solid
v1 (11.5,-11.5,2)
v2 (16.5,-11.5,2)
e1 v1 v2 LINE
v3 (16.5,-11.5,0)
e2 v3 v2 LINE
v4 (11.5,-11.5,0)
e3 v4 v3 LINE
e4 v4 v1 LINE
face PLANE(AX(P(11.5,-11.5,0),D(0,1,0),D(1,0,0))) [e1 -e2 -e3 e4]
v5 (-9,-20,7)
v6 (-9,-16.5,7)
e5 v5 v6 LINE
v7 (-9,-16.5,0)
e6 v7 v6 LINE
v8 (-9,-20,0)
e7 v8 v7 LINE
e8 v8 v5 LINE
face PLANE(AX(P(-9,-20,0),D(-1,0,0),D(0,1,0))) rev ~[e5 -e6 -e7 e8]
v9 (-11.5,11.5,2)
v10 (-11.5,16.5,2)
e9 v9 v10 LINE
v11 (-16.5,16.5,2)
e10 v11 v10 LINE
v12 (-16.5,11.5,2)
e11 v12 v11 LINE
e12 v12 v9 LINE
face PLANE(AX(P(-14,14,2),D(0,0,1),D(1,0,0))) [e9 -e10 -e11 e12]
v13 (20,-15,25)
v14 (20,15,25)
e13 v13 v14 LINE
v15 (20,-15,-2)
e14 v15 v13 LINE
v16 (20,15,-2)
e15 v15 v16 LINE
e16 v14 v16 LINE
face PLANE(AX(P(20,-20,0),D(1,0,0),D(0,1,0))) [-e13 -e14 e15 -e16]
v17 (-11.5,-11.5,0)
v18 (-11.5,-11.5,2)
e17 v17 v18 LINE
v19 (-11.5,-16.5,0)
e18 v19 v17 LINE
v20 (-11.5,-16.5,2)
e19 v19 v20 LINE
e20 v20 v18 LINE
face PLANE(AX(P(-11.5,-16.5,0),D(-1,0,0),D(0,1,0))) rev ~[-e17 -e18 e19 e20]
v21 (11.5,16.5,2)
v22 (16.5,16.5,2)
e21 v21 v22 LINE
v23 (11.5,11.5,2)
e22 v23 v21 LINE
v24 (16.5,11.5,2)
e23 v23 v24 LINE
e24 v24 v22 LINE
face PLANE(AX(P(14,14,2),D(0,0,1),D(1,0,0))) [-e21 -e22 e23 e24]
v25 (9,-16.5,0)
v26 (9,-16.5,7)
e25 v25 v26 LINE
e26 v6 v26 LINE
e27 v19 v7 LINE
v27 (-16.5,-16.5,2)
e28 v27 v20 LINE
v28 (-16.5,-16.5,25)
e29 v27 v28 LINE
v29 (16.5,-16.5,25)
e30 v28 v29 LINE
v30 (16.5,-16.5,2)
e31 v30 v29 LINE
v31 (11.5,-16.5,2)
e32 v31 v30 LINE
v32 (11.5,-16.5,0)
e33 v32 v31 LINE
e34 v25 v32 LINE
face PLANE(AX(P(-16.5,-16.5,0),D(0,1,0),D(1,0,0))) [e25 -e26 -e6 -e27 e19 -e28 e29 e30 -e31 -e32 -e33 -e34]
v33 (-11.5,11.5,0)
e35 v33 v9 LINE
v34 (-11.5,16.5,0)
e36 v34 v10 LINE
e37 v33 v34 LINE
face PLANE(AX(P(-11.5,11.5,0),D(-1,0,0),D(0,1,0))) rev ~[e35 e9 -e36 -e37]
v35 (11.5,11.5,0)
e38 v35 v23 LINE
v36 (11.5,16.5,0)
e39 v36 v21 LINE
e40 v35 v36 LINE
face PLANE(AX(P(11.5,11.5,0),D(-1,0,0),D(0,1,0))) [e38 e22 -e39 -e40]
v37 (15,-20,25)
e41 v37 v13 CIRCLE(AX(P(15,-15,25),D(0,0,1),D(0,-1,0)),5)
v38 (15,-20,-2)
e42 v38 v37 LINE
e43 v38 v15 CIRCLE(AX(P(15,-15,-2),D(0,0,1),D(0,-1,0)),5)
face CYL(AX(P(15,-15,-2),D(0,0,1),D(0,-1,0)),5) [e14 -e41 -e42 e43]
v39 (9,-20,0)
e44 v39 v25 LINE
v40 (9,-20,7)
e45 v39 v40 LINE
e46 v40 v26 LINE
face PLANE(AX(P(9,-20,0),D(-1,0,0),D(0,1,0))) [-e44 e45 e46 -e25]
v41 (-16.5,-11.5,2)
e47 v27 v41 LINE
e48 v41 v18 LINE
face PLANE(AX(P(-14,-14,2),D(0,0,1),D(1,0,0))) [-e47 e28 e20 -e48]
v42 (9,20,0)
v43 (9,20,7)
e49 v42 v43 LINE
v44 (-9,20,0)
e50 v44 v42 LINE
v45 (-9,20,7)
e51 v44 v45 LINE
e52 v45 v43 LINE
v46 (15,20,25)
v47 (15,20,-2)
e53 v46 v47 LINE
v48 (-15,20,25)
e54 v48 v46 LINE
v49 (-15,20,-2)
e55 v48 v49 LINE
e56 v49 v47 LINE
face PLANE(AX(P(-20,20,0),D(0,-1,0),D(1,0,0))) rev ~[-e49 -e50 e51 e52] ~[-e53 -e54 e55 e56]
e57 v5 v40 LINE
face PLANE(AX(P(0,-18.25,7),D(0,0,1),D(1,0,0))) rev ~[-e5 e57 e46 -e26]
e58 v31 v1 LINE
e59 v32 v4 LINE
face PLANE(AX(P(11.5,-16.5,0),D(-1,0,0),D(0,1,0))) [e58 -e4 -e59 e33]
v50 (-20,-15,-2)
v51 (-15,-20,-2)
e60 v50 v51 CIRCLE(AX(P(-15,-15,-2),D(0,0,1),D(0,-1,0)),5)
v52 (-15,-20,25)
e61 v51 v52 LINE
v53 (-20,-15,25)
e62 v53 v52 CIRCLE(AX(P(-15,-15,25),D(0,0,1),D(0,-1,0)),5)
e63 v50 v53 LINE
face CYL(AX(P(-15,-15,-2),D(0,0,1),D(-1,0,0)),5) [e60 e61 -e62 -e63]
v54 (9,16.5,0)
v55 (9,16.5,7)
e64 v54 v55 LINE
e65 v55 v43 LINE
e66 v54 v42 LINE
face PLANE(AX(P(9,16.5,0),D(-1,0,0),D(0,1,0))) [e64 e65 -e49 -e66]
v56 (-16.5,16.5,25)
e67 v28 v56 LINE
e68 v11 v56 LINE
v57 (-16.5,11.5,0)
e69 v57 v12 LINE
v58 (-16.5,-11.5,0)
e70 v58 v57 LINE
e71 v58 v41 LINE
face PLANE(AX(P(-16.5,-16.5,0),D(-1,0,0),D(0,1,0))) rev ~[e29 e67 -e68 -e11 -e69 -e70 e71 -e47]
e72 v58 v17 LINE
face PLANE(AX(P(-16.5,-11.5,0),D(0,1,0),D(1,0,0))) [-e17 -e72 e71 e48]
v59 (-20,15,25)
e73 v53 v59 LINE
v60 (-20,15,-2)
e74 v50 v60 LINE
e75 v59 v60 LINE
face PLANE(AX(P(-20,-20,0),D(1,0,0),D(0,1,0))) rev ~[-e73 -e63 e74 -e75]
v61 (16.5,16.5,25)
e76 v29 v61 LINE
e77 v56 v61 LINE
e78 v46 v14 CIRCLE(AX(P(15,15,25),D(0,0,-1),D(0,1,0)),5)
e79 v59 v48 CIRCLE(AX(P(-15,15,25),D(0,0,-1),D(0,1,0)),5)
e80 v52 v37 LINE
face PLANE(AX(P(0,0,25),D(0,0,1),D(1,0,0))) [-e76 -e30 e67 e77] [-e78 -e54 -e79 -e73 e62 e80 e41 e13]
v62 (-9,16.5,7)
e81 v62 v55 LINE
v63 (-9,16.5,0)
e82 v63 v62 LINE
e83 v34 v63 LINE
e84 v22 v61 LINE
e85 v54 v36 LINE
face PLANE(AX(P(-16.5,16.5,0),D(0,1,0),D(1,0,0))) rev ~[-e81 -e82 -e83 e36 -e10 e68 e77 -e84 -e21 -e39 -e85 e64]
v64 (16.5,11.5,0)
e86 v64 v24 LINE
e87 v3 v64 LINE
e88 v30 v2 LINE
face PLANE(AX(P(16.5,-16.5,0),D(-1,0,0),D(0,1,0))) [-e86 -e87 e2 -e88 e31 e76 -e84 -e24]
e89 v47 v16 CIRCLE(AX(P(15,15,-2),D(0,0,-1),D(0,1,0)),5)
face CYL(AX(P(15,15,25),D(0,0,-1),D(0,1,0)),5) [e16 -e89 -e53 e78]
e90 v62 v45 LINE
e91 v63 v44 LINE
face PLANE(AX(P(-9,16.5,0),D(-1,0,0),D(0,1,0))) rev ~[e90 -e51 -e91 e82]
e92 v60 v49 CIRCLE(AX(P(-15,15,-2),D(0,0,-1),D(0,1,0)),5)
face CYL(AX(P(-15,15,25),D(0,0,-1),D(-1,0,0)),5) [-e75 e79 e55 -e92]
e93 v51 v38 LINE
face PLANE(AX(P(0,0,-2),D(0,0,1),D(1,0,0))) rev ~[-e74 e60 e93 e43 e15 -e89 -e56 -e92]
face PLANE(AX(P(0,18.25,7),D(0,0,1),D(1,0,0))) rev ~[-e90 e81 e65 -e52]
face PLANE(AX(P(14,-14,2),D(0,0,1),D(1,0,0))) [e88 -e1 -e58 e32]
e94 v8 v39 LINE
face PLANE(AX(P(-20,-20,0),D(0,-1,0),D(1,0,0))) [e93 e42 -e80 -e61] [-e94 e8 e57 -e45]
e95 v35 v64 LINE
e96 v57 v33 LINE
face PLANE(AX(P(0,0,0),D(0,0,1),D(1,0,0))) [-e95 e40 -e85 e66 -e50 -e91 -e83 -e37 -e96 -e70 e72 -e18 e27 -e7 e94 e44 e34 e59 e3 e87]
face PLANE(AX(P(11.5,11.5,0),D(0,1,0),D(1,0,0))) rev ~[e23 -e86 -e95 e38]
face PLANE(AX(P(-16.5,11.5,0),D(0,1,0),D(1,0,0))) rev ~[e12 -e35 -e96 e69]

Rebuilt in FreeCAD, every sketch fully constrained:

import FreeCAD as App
import Part
import Sketcher

V = App.Vector


def edges_at(feature, points):
    """Names of the edges that pass closest to the given points."""
    edges = feature.Shape.Edges
    near = lambda p: min(range(len(edges)), key=lambda i: edges[i].distToShape(Part.Vertex(*p))[0])
    return sorted({f"Edge{near(p) + 1}" for p in points})

doc = App.newDocument("Part")
body = doc.addObject("PartDesign::Body", "Body")

# Sketch on XY plane
sketch1 = body.newObject("Sketcher::SketchObject", "Sketch")
sketch1.AttachmentSupport = (doc.getObject("XY_Plane"), [""])
sketch1.MapMode = "FlatFace"
sketch1.addGeometry([
    Part.LineSegment(V(-20, 20, 0), V(-20, -20, 0)),  # 0
    Part.LineSegment(V(-20, -20, 0), V(20, -20, 0)),  # 1
    Part.LineSegment(V(20, -20, 0), V(20, 20, 0)),  # 2
    Part.LineSegment(V(20, 20, 0), V(-20, 20, 0)),  # 3
    Part.LineSegment(V(16, -16, 0), V(-16, -16, 0)),  # 4
    Part.LineSegment(V(-16, -16, 0), V(-16, 16, 0)),  # 5
    Part.LineSegment(V(-16, 16, 0), V(16, 16, 0)),  # 6
    Part.LineSegment(V(16, 16, 0), V(16, -16, 0)),  # 7
], False)
sketch1.addConstraint([
    Sketcher.Constraint("Coincident", 0, 2, 1, 1),
    Sketcher.Constraint("Coincident", 1, 2, 2, 1),
    Sketcher.Constraint("Coincident", 2, 2, 3, 1),
    Sketcher.Constraint("Coincident", 3, 2, 0, 1),
    Sketcher.Constraint("Coincident", 4, 2, 5, 1),
    Sketcher.Constraint("Coincident", 5, 2, 6, 1),
    Sketcher.Constraint("Coincident", 6, 2, 7, 1),
    Sketcher.Constraint("Coincident", 7, 2, 4, 1),
    Sketcher.Constraint("Vertical", 0),
    Sketcher.Constraint("Horizontal", 1),
    Sketcher.Constraint("Vertical", 2),
    Sketcher.Constraint("Horizontal", 3),
    Sketcher.Constraint("Horizontal", 4),
    Sketcher.Constraint("Vertical", 5),
    Sketcher.Constraint("Horizontal", 6),
    Sketcher.Constraint("Vertical", 7),
    Sketcher.Constraint("Symmetric", 0, 2, 2, 2, -1, 1),
    Sketcher.Constraint("Symmetric", 4, 2, 6, 2, -1, 1),
    Sketcher.Constraint("Equal", 3, 0),
    Sketcher.Constraint("Equal", 6, 5),
    Sketcher.Constraint("DistanceX", 1, 1, 1, 2, 40.0),
    Sketcher.Constraint("DistanceX", 4, 2, 4, 1, 33.0),
])
pad1 = body.newObject("PartDesign::Pad", "Pad")
pad1.Profile = sketch1
pad1.Length = 25

# Sketch on XY plane
sketch2 = body.newObject("Sketcher::SketchObject", "Sketch001")
sketch2.AttachmentSupport = (doc.getObject("XY_Plane"), [""])
sketch2.MapMode = "FlatFace"
sketch2.addGeometry([
    Part.LineSegment(V(-20, 20, 0), V(-20, -20, 0)),
    Part.LineSegment(V(-20, -20, 0), V(20, -20, 0)),
    Part.LineSegment(V(20, -20, 0), V(20, 20, 0)),
    Part.LineSegment(V(20, 20, 0), V(-20, 20, 0)),
], False)
sketch2.addConstraint([
    Sketcher.Constraint("Coincident", 0, 2, 1, 1),
    Sketcher.Constraint("Coincident", 1, 2, 2, 1),
    Sketcher.Constraint("Coincident", 2, 2, 3, 1),
    Sketcher.Constraint("Coincident", 3, 2, 0, 1),
    Sketcher.Constraint("Vertical", 0),
    Sketcher.Constraint("Horizontal", 1),
    Sketcher.Constraint("Vertical", 2),
    Sketcher.Constraint("Horizontal", 3),
    Sketcher.Constraint("Symmetric", 0, 2, 2, 2, -1, 1),
    Sketcher.Constraint("Equal", 3, 0),
    Sketcher.Constraint("DistanceX", 1, 1, 1, 2, 40.0),
])
pad2 = body.newObject("PartDesign::Pad", "Pad001")
pad2.Profile = sketch2
pad2.Length = 2
pad2.Reversed = True

# Sketch on XY plane
sketch3 = body.newObject("Sketcher::SketchObject", "Sketch002")
sketch3.AttachmentSupport = (doc.getObject("XY_Plane"), [""])
sketch3.MapMode = "FlatFace"
sketch3.addGeometry([
    Part.LineSegment(V(-16, 16, 0), V(-16, 12, 0)),  # 0
    Part.LineSegment(V(-16, 12, 0), V(-12, 12, 0)),  # 1
    Part.LineSegment(V(-12, 12, 0), V(-12, 16, 0)),  # 2
    Part.LineSegment(V(-12, 16, 0), V(-16, 16, 0)),  # 3
    Part.LineSegment(V(12, 16, 0), V(12, 12, 0)),  # 4
    Part.LineSegment(V(12, 12, 0), V(16, 12, 0)),  # 5
    Part.LineSegment(V(16, 12, 0), V(16, 16, 0)),  # 6
    Part.LineSegment(V(16, 16, 0), V(12, 16, 0)),  # 7
    Part.LineSegment(V(-16, -12, 0), V(-16, -16, 0)),  # 8
    Part.LineSegment(V(-16, -16, 0), V(-12, -16, 0)),  # 9
    Part.LineSegment(V(-12, -16, 0), V(-12, -12, 0)),  # 10
    Part.LineSegment(V(-12, -12, 0), V(-16, -12, 0)),  # 11
    Part.LineSegment(V(12, -12, 0), V(12, -16, 0)),  # 12
    Part.LineSegment(V(12, -16, 0), V(16, -16, 0)),  # 13
    Part.LineSegment(V(16, -16, 0), V(16, -12, 0)),  # 14
    Part.LineSegment(V(16, -12, 0), V(12, -12, 0)),  # 15
], False)
sketch3.addConstraint([
    Sketcher.Constraint("Coincident", 0, 2, 1, 1),
    Sketcher.Constraint("Coincident", 1, 2, 2, 1),
    Sketcher.Constraint("Coincident", 2, 2, 3, 1),
    Sketcher.Constraint("Coincident", 3, 2, 0, 1),
    Sketcher.Constraint("Coincident", 4, 2, 5, 1),
    Sketcher.Constraint("Coincident", 5, 2, 6, 1),
    Sketcher.Constraint("Coincident", 6, 2, 7, 1),
    Sketcher.Constraint("Coincident", 7, 2, 4, 1),
    Sketcher.Constraint("Coincident", 8, 2, 9, 1),
    Sketcher.Constraint("Coincident", 9, 2, 10, 1),
    Sketcher.Constraint("Coincident", 10, 2, 11, 1),
    Sketcher.Constraint("Coincident", 11, 2, 8, 1),
    Sketcher.Constraint("Coincident", 12, 2, 13, 1),
    Sketcher.Constraint("Coincident", 13, 2, 14, 1),
    Sketcher.Constraint("Coincident", 14, 2, 15, 1),
    Sketcher.Constraint("Coincident", 15, 2, 12, 1),
    Sketcher.Constraint("Vertical", 0),
    Sketcher.Constraint("Horizontal", 1),
    Sketcher.Constraint("Vertical", 2),
    Sketcher.Constraint("Horizontal", 3),
    Sketcher.Constraint("Vertical", 4),
    Sketcher.Constraint("Horizontal", 5),
    Sketcher.Constraint("Vertical", 6),
    Sketcher.Constraint("Horizontal", 7),
    Sketcher.Constraint("Vertical", 8),
    Sketcher.Constraint("Horizontal", 9),
    Sketcher.Constraint("Vertical", 10),
    Sketcher.Constraint("Horizontal", 11),
    Sketcher.Constraint("Vertical", 12),
    Sketcher.Constraint("Horizontal", 13),
    Sketcher.Constraint("Vertical", 14),
    Sketcher.Constraint("Horizontal", 15),
    Sketcher.Constraint("Symmetric", 6, 2, 8, 2, -1, 1),
    Sketcher.Constraint("Symmetric", 4, 2, 10, 2, -1, 1),
    Sketcher.Constraint("Symmetric", 2, 2, 12, 2, -1, 1),
    Sketcher.Constraint("Symmetric", 0, 2, 14, 2, -1, 1),
    Sketcher.Constraint("Symmetric", 1, 2, 4, 2, -2),
    Sketcher.Constraint("Symmetric", 3, 2, 6, 2, -2),
    Sketcher.Constraint("Equal", 15, 0),
    Sketcher.Constraint("DistanceX", 1, 1, 1, 2, 5.0),
    Sketcher.Constraint("DistanceX", 1, 2, 4, 2, 23.0),
    Sketcher.Constraint("DistanceY", 8, 2, 0, 2, 28.0),
])
pad3 = body.newObject("PartDesign::Pad", "Pad002")
pad3.Profile = sketch3
pad3.Length = 2

# Sketch on XY plane
sketch4 = body.newObject("Sketcher::SketchObject", "Sketch003")
sketch4.AttachmentSupport = (doc.getObject("XY_Plane"), [""])
sketch4.MapMode = "FlatFace"
sketch4.addGeometry([
    Part.LineSegment(V(-9, -16.5, 0), V(-9, -20, 0)),  # 0
    Part.LineSegment(V(-9, -20, 0), V(9, -20, 0)),  # 1
    Part.LineSegment(V(9, -20, 0), V(9, -16.5, 0)),  # 2
    Part.LineSegment(V(9, -16.5, 0), V(-9, -16.5, 0)),  # 3
    Part.LineSegment(V(-9, 20, 0), V(-9, 16.5, 0)),  # 4
    Part.LineSegment(V(-9, 16.5, 0), V(9, 16.5, 0)),  # 5
    Part.LineSegment(V(9, 16.5, 0), V(9, 20, 0)),  # 6
    Part.LineSegment(V(9, 20, 0), V(-9, 20, 0)),  # 7
], False)
sketch4.addConstraint([
    Sketcher.Constraint("Coincident", 0, 2, 1, 1),
    Sketcher.Constraint("Coincident", 1, 2, 2, 1),
    Sketcher.Constraint("Coincident", 2, 2, 3, 1),
    Sketcher.Constraint("Coincident", 3, 2, 0, 1),
    Sketcher.Constraint("Coincident", 4, 2, 5, 1),
    Sketcher.Constraint("Coincident", 5, 2, 6, 1),
    Sketcher.Constraint("Coincident", 6, 2, 7, 1),
    Sketcher.Constraint("Coincident", 7, 2, 4, 1),
    Sketcher.Constraint("Vertical", 0),
    Sketcher.Constraint("Horizontal", 1),
    Sketcher.Constraint("Vertical", 2),
    Sketcher.Constraint("Horizontal", 3),
    Sketcher.Constraint("Vertical", 4),
    Sketcher.Constraint("Horizontal", 5),
    Sketcher.Constraint("Vertical", 6),
    Sketcher.Constraint("Horizontal", 7),
    Sketcher.Constraint("Symmetric", 2, 2, 4, 2, -1, 1),
    Sketcher.Constraint("Symmetric", 0, 2, 6, 2, -1, 1),
    Sketcher.Constraint("Vertical", 3, 2, 4, 2),
    Sketcher.Constraint("DistanceX", 1, 1, 1, 2, 18.0),
    Sketcher.Constraint("DistanceY", 0, 2, 0, 1, 3.5),
    Sketcher.Constraint("DistanceY", 0, 2, -1, 1, 20.0),
])
pocket1 = body.newObject("PartDesign::Pocket", "Pocket")
pocket1.Profile = sketch4
pocket1.Length = 7
pocket1.Reversed = True
doc.recompute()

fillet = body.newObject("PartDesign::Fillet", "Fillet")
fillet.Base = (pocket1, edges_at(pocket1, [
    (20, -20, 11.5),
    (-20, -20, 11.5),
    (20, 20, 11.5),
    (-20, 20, 11.5),
]))
fillet.Radius = 5

doc.recompute()
